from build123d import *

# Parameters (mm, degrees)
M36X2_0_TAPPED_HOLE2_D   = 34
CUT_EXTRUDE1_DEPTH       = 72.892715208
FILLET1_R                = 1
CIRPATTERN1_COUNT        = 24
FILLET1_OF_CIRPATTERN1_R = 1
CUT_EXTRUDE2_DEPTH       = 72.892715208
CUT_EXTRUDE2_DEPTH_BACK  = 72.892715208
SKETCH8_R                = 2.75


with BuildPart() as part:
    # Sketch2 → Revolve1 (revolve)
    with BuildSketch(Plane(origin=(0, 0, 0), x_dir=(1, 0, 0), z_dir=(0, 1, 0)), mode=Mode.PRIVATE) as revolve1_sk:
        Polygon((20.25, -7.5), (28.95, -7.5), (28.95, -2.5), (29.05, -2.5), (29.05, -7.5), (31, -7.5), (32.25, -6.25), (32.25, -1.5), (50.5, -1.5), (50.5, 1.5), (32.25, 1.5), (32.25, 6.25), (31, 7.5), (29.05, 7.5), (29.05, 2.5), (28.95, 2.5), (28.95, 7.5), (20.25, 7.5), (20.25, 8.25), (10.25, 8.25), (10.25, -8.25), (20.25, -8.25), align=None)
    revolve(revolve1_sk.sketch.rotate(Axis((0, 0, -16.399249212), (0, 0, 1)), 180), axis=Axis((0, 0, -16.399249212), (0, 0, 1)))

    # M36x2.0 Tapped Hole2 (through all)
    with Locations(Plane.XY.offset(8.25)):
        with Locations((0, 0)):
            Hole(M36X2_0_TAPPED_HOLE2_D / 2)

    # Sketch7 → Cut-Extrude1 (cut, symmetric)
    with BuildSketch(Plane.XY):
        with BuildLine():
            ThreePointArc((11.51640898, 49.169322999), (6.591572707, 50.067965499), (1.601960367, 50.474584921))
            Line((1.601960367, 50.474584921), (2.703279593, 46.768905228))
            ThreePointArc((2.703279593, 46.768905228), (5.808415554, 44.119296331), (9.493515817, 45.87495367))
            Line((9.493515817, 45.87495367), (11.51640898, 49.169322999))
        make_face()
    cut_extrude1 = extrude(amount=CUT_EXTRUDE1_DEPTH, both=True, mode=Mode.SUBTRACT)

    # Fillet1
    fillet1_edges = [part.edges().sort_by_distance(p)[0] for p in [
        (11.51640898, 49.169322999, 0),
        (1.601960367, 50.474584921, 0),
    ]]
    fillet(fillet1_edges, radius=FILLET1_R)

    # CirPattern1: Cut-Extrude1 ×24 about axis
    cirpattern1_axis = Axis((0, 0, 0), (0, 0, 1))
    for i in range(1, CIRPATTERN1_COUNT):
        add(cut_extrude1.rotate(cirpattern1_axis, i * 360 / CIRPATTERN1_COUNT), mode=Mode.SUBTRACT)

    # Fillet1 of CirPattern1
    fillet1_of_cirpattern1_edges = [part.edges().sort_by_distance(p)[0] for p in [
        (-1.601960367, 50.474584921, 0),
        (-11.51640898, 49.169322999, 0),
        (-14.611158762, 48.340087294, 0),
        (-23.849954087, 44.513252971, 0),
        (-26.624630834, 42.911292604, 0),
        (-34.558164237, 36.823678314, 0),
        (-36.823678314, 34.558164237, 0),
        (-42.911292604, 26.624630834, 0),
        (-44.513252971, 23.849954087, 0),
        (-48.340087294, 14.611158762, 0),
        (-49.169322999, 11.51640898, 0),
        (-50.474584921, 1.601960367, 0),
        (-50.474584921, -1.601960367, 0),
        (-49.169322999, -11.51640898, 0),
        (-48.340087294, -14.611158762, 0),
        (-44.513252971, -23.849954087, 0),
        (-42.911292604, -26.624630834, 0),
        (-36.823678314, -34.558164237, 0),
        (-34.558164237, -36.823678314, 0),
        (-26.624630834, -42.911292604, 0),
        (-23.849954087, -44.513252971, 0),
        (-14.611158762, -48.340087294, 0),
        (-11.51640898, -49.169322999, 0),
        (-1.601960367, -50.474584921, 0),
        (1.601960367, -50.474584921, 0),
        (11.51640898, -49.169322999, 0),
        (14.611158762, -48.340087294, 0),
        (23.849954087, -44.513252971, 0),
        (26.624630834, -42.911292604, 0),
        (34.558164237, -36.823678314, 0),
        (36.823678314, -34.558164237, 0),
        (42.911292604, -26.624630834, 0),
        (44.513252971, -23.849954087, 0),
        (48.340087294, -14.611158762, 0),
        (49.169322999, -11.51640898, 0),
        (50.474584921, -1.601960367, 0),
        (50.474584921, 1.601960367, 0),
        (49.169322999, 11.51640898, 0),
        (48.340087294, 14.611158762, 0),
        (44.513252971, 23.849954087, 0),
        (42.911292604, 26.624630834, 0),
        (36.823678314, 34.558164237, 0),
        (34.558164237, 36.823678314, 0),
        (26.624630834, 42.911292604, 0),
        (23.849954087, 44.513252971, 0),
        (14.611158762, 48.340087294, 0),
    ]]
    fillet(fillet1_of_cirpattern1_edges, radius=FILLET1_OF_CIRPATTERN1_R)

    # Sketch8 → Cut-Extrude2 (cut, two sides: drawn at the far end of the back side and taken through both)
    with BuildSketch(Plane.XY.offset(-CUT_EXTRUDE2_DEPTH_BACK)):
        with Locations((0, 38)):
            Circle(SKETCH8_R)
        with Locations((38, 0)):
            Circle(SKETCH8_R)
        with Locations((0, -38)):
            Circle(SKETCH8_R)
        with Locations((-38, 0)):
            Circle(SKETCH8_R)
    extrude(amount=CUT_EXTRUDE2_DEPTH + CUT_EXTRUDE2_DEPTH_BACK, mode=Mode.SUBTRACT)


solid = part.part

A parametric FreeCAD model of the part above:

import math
import FreeCAD as App
import Part
import Sketcher

V = App.Vector
Q = App.Units.Quantity


def edges_at(feature, points):
    """Names of the edges that pass closest to the given points."""
    edges = feature.Shape.Edges
    near = lambda p: min(range(len(edges)), key=lambda i: edges[i].distToShape(Part.Vertex(*p))[0])
    return sorted({f"Edge{near(p) + 1}" for p in points})


def add_polygon(sketch, points):
    """Adds a closed chain of lines whose ends are joined by coincident constraints."""
    first, n = sketch.GeometryCount, len(points)
    for a, b in zip(points, points[1:] + points[:1]):
        sketch.addGeometry(Part.LineSegment(App.Vector(*a, 0), App.Vector(*b, 0)), False)
    for i in range(n):
        sketch.addConstraint(Sketcher.Constraint("Coincident", first + i, 2, first + (i + 1) % n, 1))

doc = App.newDocument("Part")
body = doc.addObject("PartDesign::Body", "Body")

# Sketch on XZ plane
sketch1 = doc.addObject("Sketcher::SketchObject", "Sketch")
body.addObject(sketch1)
sketch1.AttachmentSupport = (doc.XZ_Plane, [""])
sketch1.MapMode = "FlatFace"
add_polygon(sketch1, [(20.25, 7.5), (28.95, 7.5), (28.95, 2.5), (29.05, 2.5), (29.05, 7.5), (31, 7.5), (32.25, 6.25), (32.25, 1.5), (50.5, 1.5), (50.5, -1.5), (32.25, -1.5), (32.25, -6.25), (31, -7.5), (29.05, -7.5), (29.05, -2.5), (28.95, -2.5), (28.95, -7.5), (20.25, -7.5), (20.25, -8.25), (10.25, -8.25), (10.25, 8.25), (20.25, 8.25)])  # lines 0-21
sketch1.addConstraint([
    Sketcher.Constraint("Horizontal", 0),
    Sketcher.Constraint("Vertical", 1),
    Sketcher.Constraint("Horizontal", 2),
    Sketcher.Constraint("Vertical", 3),
    Sketcher.Constraint("Horizontal", 4),
    Sketcher.Constraint("Vertical", 6),
    Sketcher.Constraint("Horizontal", 7),
    Sketcher.Constraint("Vertical", 8),
    Sketcher.Constraint("Horizontal", 9),
    Sketcher.Constraint("Vertical", 10),
    Sketcher.Constraint("Horizontal", 12),
    Sketcher.Constraint("Vertical", 13),
    Sketcher.Constraint("Horizontal", 14),
    Sketcher.Constraint("Vertical", 15),
    Sketcher.Constraint("Horizontal", 16),
    Sketcher.Constraint("Vertical", 17),
    Sketcher.Constraint("Horizontal", 18),
    Sketcher.Constraint("Vertical", 19),
    Sketcher.Constraint("Horizontal", 20),
    Sketcher.Constraint("Vertical", 21),
    Sketcher.Constraint("Symmetric", 6, 2, 9, 2, -1),
    Sketcher.Constraint("Symmetric", 4, 2, 11, 2, -1),
    Sketcher.Constraint("Symmetric", 2, 2, 13, 2, -1),
    Sketcher.Constraint("Symmetric", 0, 2, 15, 2, -1),
    Sketcher.Constraint("Symmetric", 17, 2, 20, 2, -1),
    Sketcher.Constraint("Perpendicular", 5, 11),
    Sketcher.Constraint("Horizontal", 0, 2, 3, 2),
    Sketcher.Constraint("Equal", 6, 10),
    Sketcher.Constraint("DistanceX", 18, 2, 18, 1, Q("10 mm")),
    Sketcher.Constraint("DistanceY", 1, 2, 1, 1, Q("5 mm")),
    Sketcher.Constraint("DistanceY", 8, 2, 8, 1, Q("3 mm")),
    Sketcher.Constraint("DistanceX", 0, 1, 0, 2, Q("8.7 mm")),
    Sketcher.Constraint("DistanceX", 2, 1, 2, 2, Q("0.1 mm")),
    Sketcher.Constraint("DistanceY", 19, 1, 19, 2, Q("16.5 mm")),
    Sketcher.Constraint("DistanceX", -1, 1, 4, 2, Q("31 mm")),
    Sketcher.Constraint("DistanceY", 6, 2, 2, 2, Q("1 mm")),
    Sketcher.Constraint("DistanceX", 4, 1, 4, 2, Q("1.95 mm")),
    Sketcher.Constraint("DistanceX", 7, 1, 7, 2, Q("18.25 mm")),
    Sketcher.Constraint("DistanceY", 6, 2, 6, 1, Q("4.75 mm")),
])
revolution = doc.addObject("PartDesign::Revolution", "Revolution")
body.addObject(revolution)
revolution.Profile = sketch1
revolution.ReferenceAxis = (sketch1, ["V_Axis"])
revolution.Angle = 360

# Sketch on XY plane
sketch2 = doc.addObject("Sketcher::SketchObject", "Sketch001")
body.addObject(sketch2)
sketch2.AttachmentSupport = (doc.XY_Plane, [""])
sketch2.MapMode = "FlatFace"
sketch2.AttachmentOffset = App.Placement(V(0, 0, 8.25), App.Rotation())
sketch2.addGeometry(Part.Circle(V(0, 0, 0), V(0, 0, 1), 17), False)
sketch2.addConstraint([
    Sketcher.Constraint("Coincident", 0, 3, -1, 1),
    Sketcher.Constraint("Diameter", 0, Q("34 mm")),
])
doc.recompute()
hole = doc.addObject("PartDesign::Hole", "Hole")
body.addObject(hole)
hole.Profile = sketch2
hole.ThreadType = "None"
hole.Diameter = 34
hole.DepthType = "ThroughAll"

# Sketch on XY plane
sketch3 = doc.addObject("Sketcher::SketchObject", "Sketch002")
body.addObject(sketch3)
sketch3.AttachmentSupport = (doc.XY_Plane, [""])
sketch3.MapMode = "FlatFace"
sketch3.addGeometry([
    Part.ArcOfCircle(Part.Circle(V(0, 0, 0), V(0, 0, 1), 50.5), math.radians(76.82), math.radians(88.18)),
    Part.LineSegment(V(1.6, 50.5, 0), V(2.7, 46.8, 0)),
    Part.ArcOfCircle(Part.Circle(V(6.3, 47.8, 0), V(0, 0, 1), 3.8), math.radians(-163), math.radians(-32)),
    Part.LineSegment(V(9.5, 45.9, 0), V(11.5, 49.2, 0)),
], False)
sketch3.addConstraint([
    Sketcher.Constraint("Coincident", 0, 2, 1, 1),
    Sketcher.Constraint("Tangent", 1, 2, 2, 1),
    Sketcher.Constraint("Tangent", 2, 2, 3, 1),
    Sketcher.Constraint("Coincident", 3, 2, 0, 1),
    Sketcher.Constraint("Coincident", 0, 3, -1, 1),
    Sketcher.Constraint("Equal", 1, 3),
    Sketcher.Constraint("Radius", 0, Q("50.5 mm")),
    Sketcher.Constraint("Radius", 2, Q("3.75 mm")),
    Sketcher.Constraint("Distance", 1, Q("3.865872 mm")),
    Sketcher.Constraint("DistanceX", -1, 1, 2, 3, Q("6.297889 mm")),
    Sketcher.Constraint("DistanceX", -1, 1, 0, 2, Q("1.60196 mm")),
])
pocket1 = doc.addObject("PartDesign::Pocket", "Pocket")
body.addObject(pocket1)
pocket1.Profile = sketch3
pocket1.Length = 145.78543
pocket1.Midplane = True
doc.recompute()

fillet = doc.addObject("PartDesign::Fillet", "Fillet")
body.addObject(fillet)
fillet.Base = (pocket1, edges_at(pocket1, [(11.516, 49.169, 0), (1.602, 50.475, 0)]))
fillet.Radius = 1
doc.recompute()

polarpattern = doc.addObject("PartDesign::PolarPattern", "PolarPattern")
body.addObject(polarpattern)
polarpattern.Originals = [pocket1]
polarpattern.Axis = (doc.Z_Axis, [""])
polarpattern.Angle = 360
polarpattern.Occurrences = 24
body.Tip = polarpattern
doc.recompute()

fillet2 = doc.addObject("PartDesign::Fillet", "Fillet001")
body.addObject(fillet2)
fillet2.Base = (polarpattern, edges_at(polarpattern, [
    (-1.602, 50.475, 0),
    (-11.516, 49.169, 0),
    (-14.611, 48.34, 0),
    (-23.85, 44.513, 0),
    (-26.625, 42.911, 0),
    (-34.558, 36.824, 0),
    (-36.824, 34.558, 0),
    (-42.911, 26.625, 0),
    (-44.513, 23.85, 0),
    (-48.34, 14.611, 0),
    (-49.169, 11.516, 0),
    (-50.475, 1.602, 0),
    (-50.475, -1.602, 0),
    (-49.169, -11.516, 0),
    (-48.34, -14.611, 0),
    (-44.513, -23.85, 0),
    (-42.911, -26.625, 0),
    (-36.824, -34.558, 0),
    (-34.558, -36.824, 0),
    (-26.625, -42.911, 0),
    (-23.85, -44.513, 0),
    (-14.611, -48.34, 0),
    (-11.516, -49.169, 0),
    (-1.602, -50.475, 0),
    (1.602, -50.475, 0),
    (11.516, -49.169, 0),
    (14.611, -48.34, 0),
    (23.85, -44.513, 0),
    (26.625, -42.911, 0),
    (34.558, -36.824, 0),
    (36.824, -34.558, 0),
    (42.911, -26.625, 0),
    (44.513, -23.85, 0),
    (48.34, -14.611, 0),
    (49.169, -11.516, 0),
    (50.475, -1.602, 0),
    (50.475, 1.602, 0),
    (49.169, 11.516, 0),
    (48.34, 14.611, 0),
    (44.513, 23.85, 0),
    (42.911, 26.625, 0),
    (36.824, 34.558, 0),
    (34.558, 36.824, 0),
    (26.625, 42.911, 0),
    (23.85, 44.513, 0),
    (14.611, 48.34, 0),
]))
fillet2.Radius = 1

# Sketch on XY plane
sketch4 = doc.addObject("Sketcher::SketchObject", "Sketch003")
body.addObject(sketch4)
sketch4.AttachmentSupport = (doc.XY_Plane, [""])
sketch4.MapMode = "FlatFace"
sketch4.addGeometry([
    Part.Circle(V(0, 38, 0), V(0, 0, 1), 2.8),
    Part.Circle(V(38, 0, 0), V(0, 0, 1), 2.8),
    Part.Circle(V(0, -38, 0), V(0, 0, 1), 2.8),
    Part.Circle(V(-38, 0, 0), V(0, 0, 1), 2.8),
], False)
sketch4.addConstraint([
    Sketcher.Constraint("Equal", 0, 1),
    Sketcher.Constraint("Equal", 1, 2),
    Sketcher.Constraint("Equal", 2, 3),
    Sketcher.Constraint("Symmetric", 0, 3, 2, 3, -1, 1),
    Sketcher.Constraint("Symmetric", 1, 3, 3, 3, -1, 1),
    Sketcher.Constraint("PointOnObject", 0, 3, -2),
    Sketcher.Constraint("PointOnObject", 1, 3, -1),
    Sketcher.Constraint("Diameter", 0, Q("5.5 mm")),
    Sketcher.Constraint("DistanceY", -1, 1, 0, 3, Q("38 mm")),
    Sketcher.Constraint("DistanceX", -1, 1, 1, 3, Q("38 mm")),
])
pocket2 = doc.addObject("PartDesign::Pocket", "Pocket001")
body.addObject(pocket2)
pocket2.Profile = sketch4
pocket2.Type = "ThroughAll"
pocket2.Midplane = True

doc.recompute()
